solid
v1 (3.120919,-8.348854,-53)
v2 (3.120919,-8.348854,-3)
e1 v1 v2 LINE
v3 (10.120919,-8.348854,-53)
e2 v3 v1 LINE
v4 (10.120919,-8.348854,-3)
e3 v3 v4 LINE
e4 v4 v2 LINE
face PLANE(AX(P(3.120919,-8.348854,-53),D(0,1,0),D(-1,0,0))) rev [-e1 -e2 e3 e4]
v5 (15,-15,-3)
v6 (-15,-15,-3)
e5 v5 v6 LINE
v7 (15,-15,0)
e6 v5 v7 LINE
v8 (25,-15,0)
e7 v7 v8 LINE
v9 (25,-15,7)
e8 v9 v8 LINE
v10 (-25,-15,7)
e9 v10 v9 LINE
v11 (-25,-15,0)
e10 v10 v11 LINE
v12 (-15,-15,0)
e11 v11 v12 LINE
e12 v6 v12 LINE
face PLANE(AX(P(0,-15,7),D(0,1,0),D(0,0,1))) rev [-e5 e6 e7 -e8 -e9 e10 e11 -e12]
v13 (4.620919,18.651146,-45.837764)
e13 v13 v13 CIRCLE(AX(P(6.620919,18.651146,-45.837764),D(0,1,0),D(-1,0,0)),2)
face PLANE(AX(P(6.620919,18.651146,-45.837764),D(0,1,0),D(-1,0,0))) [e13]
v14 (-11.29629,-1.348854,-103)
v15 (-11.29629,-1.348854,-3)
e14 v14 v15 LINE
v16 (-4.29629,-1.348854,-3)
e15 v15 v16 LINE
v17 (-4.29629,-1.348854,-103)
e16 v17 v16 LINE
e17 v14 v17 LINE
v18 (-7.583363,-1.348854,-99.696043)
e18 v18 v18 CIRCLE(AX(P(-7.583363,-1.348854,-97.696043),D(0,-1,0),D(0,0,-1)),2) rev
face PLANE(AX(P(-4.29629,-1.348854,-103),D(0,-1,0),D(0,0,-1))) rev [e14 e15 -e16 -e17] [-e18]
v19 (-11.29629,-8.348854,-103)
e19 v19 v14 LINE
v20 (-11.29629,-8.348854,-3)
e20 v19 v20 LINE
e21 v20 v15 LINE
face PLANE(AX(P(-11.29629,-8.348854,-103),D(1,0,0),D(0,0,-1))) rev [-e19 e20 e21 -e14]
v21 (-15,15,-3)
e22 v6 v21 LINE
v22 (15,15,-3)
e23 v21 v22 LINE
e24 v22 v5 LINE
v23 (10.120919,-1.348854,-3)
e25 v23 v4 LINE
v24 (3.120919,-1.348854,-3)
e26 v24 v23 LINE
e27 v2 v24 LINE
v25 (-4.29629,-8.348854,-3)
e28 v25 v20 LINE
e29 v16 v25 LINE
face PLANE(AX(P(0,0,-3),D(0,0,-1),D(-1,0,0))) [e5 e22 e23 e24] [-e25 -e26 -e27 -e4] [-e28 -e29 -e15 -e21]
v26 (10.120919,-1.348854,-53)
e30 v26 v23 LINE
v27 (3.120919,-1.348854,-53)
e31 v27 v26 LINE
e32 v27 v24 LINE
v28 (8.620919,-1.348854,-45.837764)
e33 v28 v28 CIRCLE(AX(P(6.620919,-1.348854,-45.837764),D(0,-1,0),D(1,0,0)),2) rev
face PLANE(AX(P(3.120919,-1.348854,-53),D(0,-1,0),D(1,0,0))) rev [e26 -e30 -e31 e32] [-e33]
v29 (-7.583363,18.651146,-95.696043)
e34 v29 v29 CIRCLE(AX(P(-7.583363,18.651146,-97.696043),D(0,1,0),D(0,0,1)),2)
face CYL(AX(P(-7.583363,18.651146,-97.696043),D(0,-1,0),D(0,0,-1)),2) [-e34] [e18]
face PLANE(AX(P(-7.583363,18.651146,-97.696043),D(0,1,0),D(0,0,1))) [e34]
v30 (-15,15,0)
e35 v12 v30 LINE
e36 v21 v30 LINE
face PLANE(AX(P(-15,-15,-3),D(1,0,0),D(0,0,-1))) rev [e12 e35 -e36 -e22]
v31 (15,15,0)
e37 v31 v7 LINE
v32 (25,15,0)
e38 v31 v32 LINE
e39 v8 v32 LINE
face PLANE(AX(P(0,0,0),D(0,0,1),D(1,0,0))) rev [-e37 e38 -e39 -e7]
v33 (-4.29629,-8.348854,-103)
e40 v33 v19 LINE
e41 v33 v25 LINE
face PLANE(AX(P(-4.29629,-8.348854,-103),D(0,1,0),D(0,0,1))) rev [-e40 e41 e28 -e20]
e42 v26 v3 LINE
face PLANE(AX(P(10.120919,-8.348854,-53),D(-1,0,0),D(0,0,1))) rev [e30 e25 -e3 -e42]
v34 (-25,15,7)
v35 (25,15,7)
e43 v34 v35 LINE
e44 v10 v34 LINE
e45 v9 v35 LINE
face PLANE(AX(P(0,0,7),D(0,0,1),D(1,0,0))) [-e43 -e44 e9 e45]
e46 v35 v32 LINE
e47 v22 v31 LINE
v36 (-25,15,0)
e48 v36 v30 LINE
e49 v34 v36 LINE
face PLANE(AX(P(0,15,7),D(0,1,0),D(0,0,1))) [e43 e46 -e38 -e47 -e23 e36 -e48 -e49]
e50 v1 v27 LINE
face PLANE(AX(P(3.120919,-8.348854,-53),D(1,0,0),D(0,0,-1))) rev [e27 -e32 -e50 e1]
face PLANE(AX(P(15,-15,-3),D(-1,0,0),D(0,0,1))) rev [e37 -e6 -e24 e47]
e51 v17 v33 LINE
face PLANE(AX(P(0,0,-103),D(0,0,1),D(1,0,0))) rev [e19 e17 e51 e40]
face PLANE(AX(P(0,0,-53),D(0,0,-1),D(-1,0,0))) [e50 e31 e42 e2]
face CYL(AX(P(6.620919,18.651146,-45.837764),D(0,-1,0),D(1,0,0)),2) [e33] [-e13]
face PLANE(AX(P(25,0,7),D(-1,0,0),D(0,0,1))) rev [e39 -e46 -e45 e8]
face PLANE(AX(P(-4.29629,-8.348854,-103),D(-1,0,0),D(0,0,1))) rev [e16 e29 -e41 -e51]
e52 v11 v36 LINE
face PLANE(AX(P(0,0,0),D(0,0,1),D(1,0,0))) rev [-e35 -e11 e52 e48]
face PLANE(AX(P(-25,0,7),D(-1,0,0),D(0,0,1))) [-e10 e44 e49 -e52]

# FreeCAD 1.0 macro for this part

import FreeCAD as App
import Part
import Sketcher
from FreeCAD import Vector
Q = App.Units.Quantity

doc = App.newDocument("Part")
body = doc.addObject("PartDesign::Body", "Body")

# Sketch on XY plane
sketch1 = doc.addObject("Sketcher::SketchObject", "Sketch")
body.addObject(sketch1)
sketch1.AttachmentSupport = (doc.XY_Plane, [""])
sketch1.MapMode = "FlatFace"
sketch1.addGeometry([
    Part.LineSegment(Vector(-25, 15, 0), Vector(-25, -15, 0)),
    Part.LineSegment(Vector(-25, -15, 0), Vector(25, -15, 0)),
    Part.LineSegment(Vector(25, -15, 0), Vector(25, 15, 0)),
    Part.LineSegment(Vector(25, 15, 0), Vector(-25, 15, 0)),
], False)
sketch1.addConstraint([
    Sketcher.Constraint("Coincident", 0, 2, 1, 1),
    Sketcher.Constraint("Coincident", 1, 2, 2, 1),
    Sketcher.Constraint("Coincident", 2, 2, 3, 1),
    Sketcher.Constraint("Coincident", 3, 2, 0, 1),
    Sketcher.Constraint("Vertical", 0),
    Sketcher.Constraint("Horizontal", 1),
    Sketcher.Constraint("Vertical", 2),
    Sketcher.Constraint("Horizontal", 3),
    Sketcher.Constraint("Symmetric", 0, 2, 2, 2, -1, 1),
    Sketcher.Constraint("DistanceX", 1, 1, 1, 2, Q("50 mm")),
    Sketcher.Constraint("DistanceY", 0, 2, 0, 1, Q("30 mm")),
])
pad1 = doc.addObject("PartDesign::Pad", "Pad")
body.addObject(pad1)
pad1.Profile = sketch1
pad1.Length = 7

# Sketch on XY plane
sketch2 = doc.addObject("Sketcher::SketchObject", "Sketch001")
body.addObject(sketch2)
sketch2.AttachmentSupport = (doc.XY_Plane, [""])
sketch2.MapMode = "FlatFace"
sketch2.addGeometry([
    Part.LineSegment(Vector(15, 15, 0), Vector(15, -15, 0)),
    Part.LineSegment(Vector(15, -15, 0), Vector(-15, -15, 0)),
    Part.LineSegment(Vector(-15, -15, 0), Vector(-15, 15, 0)),
    Part.LineSegment(Vector(-15, 15, 0), Vector(15, 15, 0)),
], False)
sketch2.addConstraint([
    Sketcher.Constraint("Coincident", 0, 2, 1, 1),
    Sketcher.Constraint("Coincident", 1, 2, 2, 1),
    Sketcher.Constraint("Coincident", 2, 2, 3, 1),
    Sketcher.Constraint("Coincident", 3, 2, 0, 1),
    Sketcher.Constraint("Vertical", 0),
    Sketcher.Constraint("Horizontal", 1),
    Sketcher.Constraint("Vertical", 2),
    Sketcher.Constraint("Horizontal", 3),
    Sketcher.Constraint("Symmetric", 0, 2, 2, 2, -1, 1),
    Sketcher.Constraint("Equal", 3, 0),
    Sketcher.Constraint("DistanceX", 1, 2, 1, 1, Q("30 mm")),
])
pad2 = doc.addObject("PartDesign::Pad", "Pad001")
body.addObject(pad2)
pad2.Profile = sketch2
pad2.Length = 3
pad2.Reversed = True

# Sketch on XY plane
sketch3 = doc.addObject("Sketcher::SketchObject", "Sketch002")
body.addObject(sketch3)
sketch3.AttachmentSupport = (doc.XY_Plane, [""])
sketch3.MapMode = "FlatFace"
sketch3.AttachmentOffset = App.Placement(Vector(0, 0, -3), App.Rotation())
sketch3.addGeometry([
    Part.LineSegment(Vector(10.120919, -1.348854, 0), Vector(10.120919, -8.348854, 0)),
    Part.LineSegment(Vector(10.120919, -8.348854, 0), Vector(3.120919, -8.348854, 0)),
    Part.LineSegment(Vector(3.120919, -8.348854, 0), Vector(3.120919, -1.348854, 0)),
    Part.LineSegment(Vector(3.120919, -1.348854, 0), Vector(10.120919, -1.348854, 0)),
], False)
sketch3.addConstraint([
    Sketcher.Constraint("Coincident", 0, 2, 1, 1),
    Sketcher.Constraint("Coincident", 1, 2, 2, 1),
    Sketcher.Constraint("Coincident", 2, 2, 3, 1),
    Sketcher.Constraint("Coincident", 3, 2, 0, 1),
    Sketcher.Constraint("Vertical", 0),
    Sketcher.Constraint("Horizontal", 1),
    Sketcher.Constraint("Vertical", 2),
    Sketcher.Constraint("Horizontal", 3),
    Sketcher.Constraint("Equal", 3, 0),
    Sketcher.Constraint("DistanceX", 1, 2, 1, 1, Q("7 mm")),
    Sketcher.Constraint("DistanceX", -1, 1, 0, 2, Q("10.120919 mm")),
    Sketcher.Constraint("DistanceY", 0, 2, -1, 1, Q("8.348854 mm")),
])
pad3 = doc.addObject("PartDesign::Pad", "Pad002")
body.addObject(pad3)
pad3.Profile = sketch3
pad3.Length = 50
pad3.Reversed = True

# Sketch on XZ plane
sketch4 = doc.addObject("Sketcher::SketchObject", "Sketch003")
body.addObject(sketch4)
sketch4.AttachmentSupport = (doc.XZ_Plane, [""])
sketch4.MapMode = "FlatFace"
sketch4.AttachmentOffset = App.Placement(Vector(0, 0, 1.348854), App.Rotation())
sketch4.addGeometry(Part.Circle(Vector(6.620919, -45.837764, 0), Vector(0, 0, 1), 2), False)
sketch4.addConstraint([
    Sketcher.Constraint("Diameter", 0, Q("4 mm")),
    Sketcher.Constraint("DistanceX", -1, 1, 0, 3, Q("6.620919 mm")),
    Sketcher.Constraint("DistanceY", 0, 3, -1, 1, Q("45.837764 mm")),
])
pad4 = doc.addObject("PartDesign::Pad", "Pad003")
body.addObject(pad4)
pad4.Profile = sketch4
pad4.Length = 20
pad4.Reversed = True

# Sketch on XY plane
sketch5 = doc.addObject("Sketcher::SketchObject", "Sketch004")
body.addObject(sketch5)
sketch5.AttachmentSupport = (doc.XY_Plane, [""])
sketch5.MapMode = "FlatFace"
sketch5.AttachmentOffset = App.Placement(Vector(0, 0, -3), App.Rotation())
sketch5.addGeometry([
    Part.LineSegment(Vector(-4.29629, -1.348854, 0), Vector(-4.29629, -8.348854, 0)),
    Part.LineSegment(Vector(-4.29629, -8.348854, 0), Vector(-11.29629, -8.348854, 0)),
    Part.LineSegment(Vector(-11.29629, -8.348854, 0), Vector(-11.29629, -1.348854, 0)),
    Part.LineSegment(Vector(-11.29629, -1.348854, 0), Vector(-4.29629, -1.348854, 0)),
], False)
sketch5.addConstraint([
    Sketcher.Constraint("Coincident", 0, 2, 1, 1),
    Sketcher.Constraint("Coincident", 1, 2, 2, 1),
    Sketcher.Constraint("Coincident", 2, 2, 3, 1),
    Sketcher.Constraint("Coincident", 3, 2, 0, 1),
    Sketcher.Constraint("Vertical", 0),
    Sketcher.Constraint("Horizontal", 1),
    Sketcher.Constraint("Vertical", 2),
    Sketcher.Constraint("Horizontal", 3),
    Sketcher.Constraint("Equal", 3, 0),
    Sketcher.Constraint("DistanceX", 1, 2, 1, 1, Q("7 mm")),
    Sketcher.Constraint("DistanceX", 0, 2, -1, 1, Q("4.29629 mm")),
    Sketcher.Constraint("DistanceY", 0, 2, -1, 1, Q("8.348854 mm")),
])
pad5 = doc.addObject("PartDesign::Pad", "Pad004")
body.addObject(pad5)
pad5.Profile = sketch5
pad5.Length = 100
pad5.Reversed = True

# Sketch on XZ plane
sketch6 = doc.addObject("Sketcher::SketchObject", "Sketch005")
body.addObject(sketch6)
sketch6.AttachmentSupport = (doc.XZ_Plane, [""])
sketch6.MapMode = "FlatFace"
sketch6.AttachmentOffset = App.Placement(Vector(0, 0, 1.348854), App.Rotation())
sketch6.addGeometry(Part.Circle(Vector(-7.583363, -97.696043, 0), Vector(0, 0, 1), 2), False)
sketch6.addConstraint([
    Sketcher.Constraint("Diameter", 0, Q("4 mm")),
    Sketcher.Constraint("DistanceX", 0, 3, -1, 1, Q("7.583363 mm")),
    Sketcher.Constraint("DistanceY", 0, 3, -1, 1, Q("97.696043 mm")),
])
pad6 = doc.addObject("PartDesign::Pad", "Pad005")
body.addObject(pad6)
pad6.Profile = sketch6
pad6.Length = 20
pad6.Reversed = True

doc.recompute()
